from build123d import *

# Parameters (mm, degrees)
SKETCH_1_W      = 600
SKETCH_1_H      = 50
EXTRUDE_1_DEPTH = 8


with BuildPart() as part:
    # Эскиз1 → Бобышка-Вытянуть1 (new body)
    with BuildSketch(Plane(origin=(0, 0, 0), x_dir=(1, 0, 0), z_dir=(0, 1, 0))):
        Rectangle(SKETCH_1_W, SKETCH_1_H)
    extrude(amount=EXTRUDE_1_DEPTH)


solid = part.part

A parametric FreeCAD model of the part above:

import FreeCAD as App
import Part
import Sketcher
Q = App.Units.Quantity

doc = App.newDocument("Part")
params = doc.addObject("Spreadsheet::Sheet", "Params")
for row, (alias, value) in enumerate([
    ("sketch1_width", "600 mm"),
    ("sketch1_height", "50 mm"),
    ("pad1_length", "8 mm"),
], start=1):
    params.set(f"A{row}", alias)
    params.set(f"B{row}", "=" + value)
    params.setAlias(f"B{row}", alias)

body = doc.addObject("PartDesign::Body", "Body")

sketch1 = body.newObject("Sketcher::SketchObject", "Sketch")
sketch1.AttachmentSupport = (doc.getObject("XZ_Plane"), [""])
sketch1.MapMode = "FlatFace"
sketch1.addGeometry([
    Part.LineSegment(App.Vector(-300, -25, 0), App.Vector(-300, 25, 0)),
    Part.LineSegment(App.Vector(-300, 25, 0), App.Vector(300, 25, 0)),
    Part.LineSegment(App.Vector(300, 25, 0), App.Vector(300, -25, 0)),
    Part.LineSegment(App.Vector(300, -25, 0), App.Vector(-300, -25, 0)),
], False)
sketch1.addConstraint([
    Sketcher.Constraint("Coincident", 0, 2, 1, 1),
    Sketcher.Constraint("Coincident", 1, 2, 2, 1),
    Sketcher.Constraint("Coincident", 2, 2, 3, 1),
    Sketcher.Constraint("Coincident", 3, 2, 0, 1),
    Sketcher.Constraint("Vertical", 0),
    Sketcher.Constraint("Horizontal", 1),
    Sketcher.Constraint("Vertical", 2),
    Sketcher.Constraint("Horizontal", 3),
    Sketcher.Constraint("Symmetric", 0, 2, 2, 2, -1, 1),
    Sketcher.Constraint("DistanceX", 1, 1, 1, 2, Q("600 mm")),
    Sketcher.Constraint("DistanceY", 0, 1, 0, 2, Q("50 mm")),
])
sketch1.setExpression("Constraints[9]", "Params.sketch1_width")
sketch1.setExpression("Constraints[10]", "Params.sketch1_height")
pad1 = body.newObject("PartDesign::Pad", "Pad")
pad1.Profile = sketch1
pad1.setExpression("Length", "Params.pad1_length")
pad1.Reversed = True

doc.recompute()
